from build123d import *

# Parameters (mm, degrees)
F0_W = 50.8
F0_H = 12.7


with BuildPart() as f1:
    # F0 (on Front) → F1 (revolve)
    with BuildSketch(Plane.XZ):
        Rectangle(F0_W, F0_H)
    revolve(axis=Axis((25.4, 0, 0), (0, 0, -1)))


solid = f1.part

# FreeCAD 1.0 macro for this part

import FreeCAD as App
import Part
import Sketcher
from FreeCAD import Vector
Q = App.Units.Quantity


def add_polygon(sketch, points):
    """Adds a closed chain of lines whose ends are joined by coincident constraints."""
    first, n = sketch.GeometryCount, len(points)
    for a, b in zip(points, points[1:] + points[:1]):
        sketch.addGeometry(Part.LineSegment(App.Vector(*a, 0), App.Vector(*b, 0)), False)
    for i in range(n):
        sketch.addConstraint(Sketcher.Constraint("Coincident", first + i, 2, first + (i + 1) % n, 1))

doc = App.newDocument("Part")
body = doc.addObject("PartDesign::Body", "Body")

# Sketch on XZ plane
sketch1 = body.newObject("Sketcher::SketchObject", "Sketch")
sketch1.AttachmentSupport = (doc.getObject("XZ_Plane"), [""])
sketch1.MapMode = "FlatFace"
add_polygon(sketch1, [(-25, 6), (-25, -6), (25, -6), (25, 6)])  # lines 0-3
sketch1.addGeometry(Part.LineSegment(Vector(25, 6, 0), Vector(25, -6, 0)), True)  # axis
sketch1.addConstraint(Sketcher.Constraint("Vertical", 0))
sketch1.addConstraint(Sketcher.Constraint("Horizontal", 1))
sketch1.addConstraint(Sketcher.Constraint("Vertical", 2))
sketch1.addConstraint(Sketcher.Constraint("Horizontal", 3))
sketch1.addConstraint(Sketcher.Constraint("Vertical", 4))
sketch1.addConstraint(Sketcher.Constraint("Coincident", 4, 1, 2, 2))
sketch1.addConstraint(Sketcher.Constraint("Symmetric", 0, 2, 2, 2, -1, 1))
sketch1.addConstraint(Sketcher.Constraint("Horizontal", 0, 2, 4, 2))
sketch1.addConstraint(Sketcher.Constraint("DistanceX", 1, 1, 1, 2, Q("2 in")))
sketch1.addConstraint(Sketcher.Constraint("DistanceY", 0, 2, 0, 1, Q("0.5 in")))
revolution = body.newObject("PartDesign::Revolution", "Revolution")
revolution.Profile = sketch1
revolution.ReferenceAxis = (sketch1, ["Axis0"])
revolution.Angle = 360

doc.recompute()
